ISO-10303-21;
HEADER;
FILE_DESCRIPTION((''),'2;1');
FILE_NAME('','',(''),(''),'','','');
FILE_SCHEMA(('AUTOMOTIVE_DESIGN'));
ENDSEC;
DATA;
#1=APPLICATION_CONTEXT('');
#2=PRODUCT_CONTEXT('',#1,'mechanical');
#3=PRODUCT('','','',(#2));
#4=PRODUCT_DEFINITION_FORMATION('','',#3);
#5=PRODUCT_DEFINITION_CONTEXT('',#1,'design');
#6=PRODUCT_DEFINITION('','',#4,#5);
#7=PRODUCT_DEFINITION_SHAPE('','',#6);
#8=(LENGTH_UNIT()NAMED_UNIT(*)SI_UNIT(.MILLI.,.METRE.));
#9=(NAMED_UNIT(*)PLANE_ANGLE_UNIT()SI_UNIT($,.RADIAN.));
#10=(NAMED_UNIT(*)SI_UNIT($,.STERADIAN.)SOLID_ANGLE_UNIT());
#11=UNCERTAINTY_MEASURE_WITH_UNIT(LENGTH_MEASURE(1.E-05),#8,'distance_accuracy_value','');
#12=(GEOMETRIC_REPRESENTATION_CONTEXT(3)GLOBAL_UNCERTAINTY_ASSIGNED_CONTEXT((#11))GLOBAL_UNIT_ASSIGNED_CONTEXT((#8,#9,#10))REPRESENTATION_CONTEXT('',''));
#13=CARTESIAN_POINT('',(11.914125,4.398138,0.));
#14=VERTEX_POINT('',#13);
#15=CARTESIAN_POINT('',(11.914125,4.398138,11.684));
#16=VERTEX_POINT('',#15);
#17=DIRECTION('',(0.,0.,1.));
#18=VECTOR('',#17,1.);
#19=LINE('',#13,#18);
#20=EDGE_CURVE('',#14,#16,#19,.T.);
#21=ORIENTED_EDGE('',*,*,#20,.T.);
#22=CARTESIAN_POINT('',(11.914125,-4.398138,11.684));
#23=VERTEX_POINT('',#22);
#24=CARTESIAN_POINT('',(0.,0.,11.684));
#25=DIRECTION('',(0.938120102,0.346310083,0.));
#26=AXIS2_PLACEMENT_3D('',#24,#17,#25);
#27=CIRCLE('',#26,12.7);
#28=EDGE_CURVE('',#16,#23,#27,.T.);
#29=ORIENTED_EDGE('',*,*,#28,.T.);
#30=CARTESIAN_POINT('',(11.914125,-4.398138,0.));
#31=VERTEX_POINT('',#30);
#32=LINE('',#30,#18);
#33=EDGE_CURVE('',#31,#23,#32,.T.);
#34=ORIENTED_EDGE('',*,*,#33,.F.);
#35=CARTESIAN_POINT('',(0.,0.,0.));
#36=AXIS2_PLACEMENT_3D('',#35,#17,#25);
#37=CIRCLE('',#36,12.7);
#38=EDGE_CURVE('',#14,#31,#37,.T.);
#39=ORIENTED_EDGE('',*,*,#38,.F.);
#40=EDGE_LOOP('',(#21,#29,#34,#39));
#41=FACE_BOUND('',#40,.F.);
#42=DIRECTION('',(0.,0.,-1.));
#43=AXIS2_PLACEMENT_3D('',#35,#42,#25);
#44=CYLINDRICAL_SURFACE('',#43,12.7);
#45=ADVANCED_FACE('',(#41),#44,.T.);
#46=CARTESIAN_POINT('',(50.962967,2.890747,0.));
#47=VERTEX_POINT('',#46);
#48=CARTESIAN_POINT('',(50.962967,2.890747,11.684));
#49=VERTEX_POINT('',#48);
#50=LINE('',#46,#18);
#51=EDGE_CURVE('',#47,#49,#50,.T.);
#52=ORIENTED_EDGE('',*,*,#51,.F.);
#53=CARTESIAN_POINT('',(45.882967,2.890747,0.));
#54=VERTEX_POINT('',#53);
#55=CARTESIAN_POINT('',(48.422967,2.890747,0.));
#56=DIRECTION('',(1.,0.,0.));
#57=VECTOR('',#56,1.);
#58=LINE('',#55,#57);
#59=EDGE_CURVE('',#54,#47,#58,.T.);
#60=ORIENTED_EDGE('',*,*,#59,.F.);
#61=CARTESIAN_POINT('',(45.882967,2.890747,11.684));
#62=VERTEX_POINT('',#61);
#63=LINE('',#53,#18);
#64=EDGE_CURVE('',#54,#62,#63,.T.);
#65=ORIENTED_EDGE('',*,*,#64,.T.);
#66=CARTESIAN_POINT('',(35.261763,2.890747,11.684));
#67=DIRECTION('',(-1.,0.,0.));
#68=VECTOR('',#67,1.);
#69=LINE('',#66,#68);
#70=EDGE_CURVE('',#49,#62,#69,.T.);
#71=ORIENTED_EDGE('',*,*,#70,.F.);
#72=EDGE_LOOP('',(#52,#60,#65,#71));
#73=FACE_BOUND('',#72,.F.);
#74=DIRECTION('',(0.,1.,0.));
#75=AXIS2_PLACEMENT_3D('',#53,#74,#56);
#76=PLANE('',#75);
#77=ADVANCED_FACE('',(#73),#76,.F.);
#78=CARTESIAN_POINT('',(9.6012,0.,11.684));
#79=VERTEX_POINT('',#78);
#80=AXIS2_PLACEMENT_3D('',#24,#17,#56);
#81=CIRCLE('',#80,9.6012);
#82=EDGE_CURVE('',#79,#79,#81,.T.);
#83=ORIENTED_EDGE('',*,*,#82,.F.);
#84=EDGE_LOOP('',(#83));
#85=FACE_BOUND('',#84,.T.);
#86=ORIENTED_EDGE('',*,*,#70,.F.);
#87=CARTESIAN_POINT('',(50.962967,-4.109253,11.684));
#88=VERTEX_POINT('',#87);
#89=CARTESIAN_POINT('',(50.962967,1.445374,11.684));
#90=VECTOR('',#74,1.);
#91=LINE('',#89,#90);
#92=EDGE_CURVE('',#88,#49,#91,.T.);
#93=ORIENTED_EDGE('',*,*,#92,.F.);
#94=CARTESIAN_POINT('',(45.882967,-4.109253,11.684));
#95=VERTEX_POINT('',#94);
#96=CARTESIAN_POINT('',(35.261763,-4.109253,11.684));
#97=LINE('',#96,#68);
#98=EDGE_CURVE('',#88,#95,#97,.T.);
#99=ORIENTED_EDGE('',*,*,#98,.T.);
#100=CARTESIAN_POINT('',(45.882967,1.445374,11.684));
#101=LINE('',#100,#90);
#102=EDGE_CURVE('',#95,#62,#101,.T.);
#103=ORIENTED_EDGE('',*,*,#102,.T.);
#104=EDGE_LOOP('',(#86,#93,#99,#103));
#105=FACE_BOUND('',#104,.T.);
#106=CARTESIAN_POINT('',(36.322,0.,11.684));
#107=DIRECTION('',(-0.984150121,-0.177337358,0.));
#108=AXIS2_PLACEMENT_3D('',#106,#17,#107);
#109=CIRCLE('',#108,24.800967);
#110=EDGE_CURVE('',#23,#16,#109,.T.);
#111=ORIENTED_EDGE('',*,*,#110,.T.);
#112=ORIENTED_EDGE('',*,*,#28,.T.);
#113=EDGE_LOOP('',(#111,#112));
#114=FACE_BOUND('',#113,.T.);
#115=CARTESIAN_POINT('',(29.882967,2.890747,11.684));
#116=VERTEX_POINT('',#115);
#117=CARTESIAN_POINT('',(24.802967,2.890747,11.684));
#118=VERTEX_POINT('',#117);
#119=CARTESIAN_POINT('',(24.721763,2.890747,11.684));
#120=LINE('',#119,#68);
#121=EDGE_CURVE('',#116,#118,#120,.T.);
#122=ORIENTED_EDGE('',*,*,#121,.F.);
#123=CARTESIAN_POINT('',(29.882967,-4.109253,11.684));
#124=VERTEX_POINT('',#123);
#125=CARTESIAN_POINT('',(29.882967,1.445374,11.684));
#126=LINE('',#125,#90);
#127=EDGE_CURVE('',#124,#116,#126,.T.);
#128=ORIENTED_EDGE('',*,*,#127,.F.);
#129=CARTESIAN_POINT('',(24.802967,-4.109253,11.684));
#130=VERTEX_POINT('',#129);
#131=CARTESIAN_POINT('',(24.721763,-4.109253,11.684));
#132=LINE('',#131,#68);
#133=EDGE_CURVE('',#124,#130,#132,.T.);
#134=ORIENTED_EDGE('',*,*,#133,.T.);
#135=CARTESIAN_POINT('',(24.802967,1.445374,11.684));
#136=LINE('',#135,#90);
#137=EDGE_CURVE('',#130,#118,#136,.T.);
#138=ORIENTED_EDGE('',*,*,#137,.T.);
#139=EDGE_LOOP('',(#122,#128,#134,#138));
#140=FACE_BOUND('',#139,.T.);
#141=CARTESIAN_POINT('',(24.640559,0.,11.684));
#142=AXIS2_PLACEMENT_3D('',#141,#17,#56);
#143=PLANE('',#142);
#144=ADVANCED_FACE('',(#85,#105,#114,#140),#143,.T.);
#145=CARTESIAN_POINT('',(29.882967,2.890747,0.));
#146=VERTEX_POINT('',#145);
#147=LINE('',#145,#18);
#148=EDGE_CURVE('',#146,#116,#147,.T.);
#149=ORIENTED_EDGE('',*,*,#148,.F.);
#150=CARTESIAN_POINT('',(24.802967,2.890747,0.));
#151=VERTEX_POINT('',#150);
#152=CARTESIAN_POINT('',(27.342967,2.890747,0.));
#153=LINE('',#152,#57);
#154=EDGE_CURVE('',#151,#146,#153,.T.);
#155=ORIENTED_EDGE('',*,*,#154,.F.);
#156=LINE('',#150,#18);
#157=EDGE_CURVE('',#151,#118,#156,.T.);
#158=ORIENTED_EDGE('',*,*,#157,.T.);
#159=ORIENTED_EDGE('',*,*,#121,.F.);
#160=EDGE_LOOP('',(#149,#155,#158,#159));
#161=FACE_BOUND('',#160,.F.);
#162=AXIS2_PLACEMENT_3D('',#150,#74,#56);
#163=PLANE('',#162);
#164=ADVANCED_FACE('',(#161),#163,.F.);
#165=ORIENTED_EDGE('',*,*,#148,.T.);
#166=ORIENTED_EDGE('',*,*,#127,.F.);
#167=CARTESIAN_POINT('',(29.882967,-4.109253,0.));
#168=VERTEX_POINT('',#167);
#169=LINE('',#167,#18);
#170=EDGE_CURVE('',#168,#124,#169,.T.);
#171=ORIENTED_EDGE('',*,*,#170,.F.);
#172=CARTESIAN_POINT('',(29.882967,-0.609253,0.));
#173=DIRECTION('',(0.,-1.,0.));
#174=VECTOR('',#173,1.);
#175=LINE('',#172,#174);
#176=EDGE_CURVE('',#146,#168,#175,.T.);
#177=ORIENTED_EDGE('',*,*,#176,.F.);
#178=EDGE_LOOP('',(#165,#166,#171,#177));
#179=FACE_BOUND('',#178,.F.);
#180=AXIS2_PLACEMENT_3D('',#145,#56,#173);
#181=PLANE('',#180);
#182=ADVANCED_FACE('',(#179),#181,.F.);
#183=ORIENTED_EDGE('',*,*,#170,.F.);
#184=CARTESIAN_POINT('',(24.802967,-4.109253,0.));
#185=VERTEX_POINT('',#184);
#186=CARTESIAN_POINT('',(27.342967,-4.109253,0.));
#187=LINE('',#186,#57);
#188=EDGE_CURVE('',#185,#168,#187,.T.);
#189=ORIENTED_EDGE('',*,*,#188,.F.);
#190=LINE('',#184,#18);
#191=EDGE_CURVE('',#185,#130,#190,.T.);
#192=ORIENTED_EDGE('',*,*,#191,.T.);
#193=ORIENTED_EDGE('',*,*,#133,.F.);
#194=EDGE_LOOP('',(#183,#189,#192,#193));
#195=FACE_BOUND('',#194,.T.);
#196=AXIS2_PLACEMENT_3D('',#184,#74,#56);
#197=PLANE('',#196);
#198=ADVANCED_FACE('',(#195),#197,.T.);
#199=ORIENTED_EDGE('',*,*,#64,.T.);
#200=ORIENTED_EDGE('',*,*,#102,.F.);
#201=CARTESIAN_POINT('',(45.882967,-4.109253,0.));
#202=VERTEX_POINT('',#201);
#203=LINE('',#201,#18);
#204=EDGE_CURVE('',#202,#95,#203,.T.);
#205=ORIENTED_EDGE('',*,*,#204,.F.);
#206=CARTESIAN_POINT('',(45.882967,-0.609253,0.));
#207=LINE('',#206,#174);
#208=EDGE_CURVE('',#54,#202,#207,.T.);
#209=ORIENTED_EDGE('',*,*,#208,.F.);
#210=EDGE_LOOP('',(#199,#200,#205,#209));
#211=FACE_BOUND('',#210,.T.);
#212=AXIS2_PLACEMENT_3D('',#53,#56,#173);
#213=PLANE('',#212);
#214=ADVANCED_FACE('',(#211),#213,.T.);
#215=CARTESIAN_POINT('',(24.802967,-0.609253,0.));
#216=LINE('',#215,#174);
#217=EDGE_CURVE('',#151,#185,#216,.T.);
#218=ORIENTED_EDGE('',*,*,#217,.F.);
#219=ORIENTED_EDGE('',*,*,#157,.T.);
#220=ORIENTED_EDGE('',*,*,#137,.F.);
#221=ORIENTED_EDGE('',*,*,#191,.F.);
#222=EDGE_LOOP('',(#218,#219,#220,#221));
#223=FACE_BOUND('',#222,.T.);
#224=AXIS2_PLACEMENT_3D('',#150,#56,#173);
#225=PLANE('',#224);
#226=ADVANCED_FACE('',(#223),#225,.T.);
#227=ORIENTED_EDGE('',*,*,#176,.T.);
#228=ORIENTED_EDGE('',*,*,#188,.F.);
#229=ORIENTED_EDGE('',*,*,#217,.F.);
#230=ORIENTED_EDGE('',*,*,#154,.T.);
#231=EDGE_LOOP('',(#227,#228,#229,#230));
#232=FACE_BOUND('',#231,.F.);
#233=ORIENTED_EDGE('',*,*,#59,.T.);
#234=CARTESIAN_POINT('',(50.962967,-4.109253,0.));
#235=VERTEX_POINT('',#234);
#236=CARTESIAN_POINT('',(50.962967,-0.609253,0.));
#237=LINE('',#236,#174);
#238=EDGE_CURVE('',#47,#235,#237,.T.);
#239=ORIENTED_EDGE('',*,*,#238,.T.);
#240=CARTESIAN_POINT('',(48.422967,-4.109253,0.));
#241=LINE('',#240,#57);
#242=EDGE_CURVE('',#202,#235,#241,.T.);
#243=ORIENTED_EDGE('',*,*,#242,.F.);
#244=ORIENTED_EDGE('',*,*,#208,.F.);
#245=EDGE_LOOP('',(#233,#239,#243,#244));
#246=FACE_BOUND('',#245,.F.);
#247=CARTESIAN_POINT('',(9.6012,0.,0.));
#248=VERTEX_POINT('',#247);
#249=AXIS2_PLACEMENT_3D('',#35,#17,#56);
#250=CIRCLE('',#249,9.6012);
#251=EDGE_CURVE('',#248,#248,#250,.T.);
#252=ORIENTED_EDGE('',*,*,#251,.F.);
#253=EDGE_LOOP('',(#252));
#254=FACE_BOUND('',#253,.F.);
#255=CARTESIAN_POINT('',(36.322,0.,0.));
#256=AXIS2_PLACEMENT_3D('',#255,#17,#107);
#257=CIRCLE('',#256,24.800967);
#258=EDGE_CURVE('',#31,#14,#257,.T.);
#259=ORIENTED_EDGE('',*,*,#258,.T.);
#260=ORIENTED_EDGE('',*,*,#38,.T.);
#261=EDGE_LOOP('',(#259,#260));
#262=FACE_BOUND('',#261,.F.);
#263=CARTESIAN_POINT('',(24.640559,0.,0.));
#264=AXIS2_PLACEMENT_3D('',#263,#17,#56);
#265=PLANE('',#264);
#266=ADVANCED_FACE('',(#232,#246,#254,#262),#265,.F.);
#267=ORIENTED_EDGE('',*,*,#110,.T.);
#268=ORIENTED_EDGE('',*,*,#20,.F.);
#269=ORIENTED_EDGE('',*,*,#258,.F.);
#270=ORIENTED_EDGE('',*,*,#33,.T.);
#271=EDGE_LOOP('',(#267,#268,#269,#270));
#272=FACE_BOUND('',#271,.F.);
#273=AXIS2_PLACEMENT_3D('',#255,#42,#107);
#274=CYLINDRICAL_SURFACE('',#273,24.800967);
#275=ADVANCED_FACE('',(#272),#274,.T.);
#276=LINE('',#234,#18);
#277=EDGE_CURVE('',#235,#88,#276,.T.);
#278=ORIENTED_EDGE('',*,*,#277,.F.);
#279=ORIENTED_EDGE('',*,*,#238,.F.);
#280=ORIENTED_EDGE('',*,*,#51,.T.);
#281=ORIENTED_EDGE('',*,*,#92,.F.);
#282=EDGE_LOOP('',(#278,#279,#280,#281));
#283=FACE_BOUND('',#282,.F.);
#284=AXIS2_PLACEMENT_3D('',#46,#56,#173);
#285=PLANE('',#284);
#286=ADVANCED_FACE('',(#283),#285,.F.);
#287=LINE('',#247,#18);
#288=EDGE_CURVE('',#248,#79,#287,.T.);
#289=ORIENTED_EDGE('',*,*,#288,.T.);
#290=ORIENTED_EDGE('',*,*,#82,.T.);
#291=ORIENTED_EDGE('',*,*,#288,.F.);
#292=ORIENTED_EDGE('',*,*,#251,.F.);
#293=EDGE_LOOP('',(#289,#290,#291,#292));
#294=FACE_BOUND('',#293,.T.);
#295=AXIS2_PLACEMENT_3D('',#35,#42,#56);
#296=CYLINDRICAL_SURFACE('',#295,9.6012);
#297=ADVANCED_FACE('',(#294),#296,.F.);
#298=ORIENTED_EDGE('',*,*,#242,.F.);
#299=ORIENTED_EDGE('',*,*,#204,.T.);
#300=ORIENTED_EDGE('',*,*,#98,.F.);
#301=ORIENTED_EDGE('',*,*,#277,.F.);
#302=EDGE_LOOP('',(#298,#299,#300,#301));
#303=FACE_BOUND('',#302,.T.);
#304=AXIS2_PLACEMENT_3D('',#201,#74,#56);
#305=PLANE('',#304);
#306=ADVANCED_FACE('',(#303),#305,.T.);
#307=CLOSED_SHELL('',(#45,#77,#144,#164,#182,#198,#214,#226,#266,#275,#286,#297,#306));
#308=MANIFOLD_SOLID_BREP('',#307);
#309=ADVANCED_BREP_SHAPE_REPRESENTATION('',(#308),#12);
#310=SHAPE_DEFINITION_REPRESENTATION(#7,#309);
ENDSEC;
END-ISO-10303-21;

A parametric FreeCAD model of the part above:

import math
import FreeCAD as App
import Part
import Sketcher

V = App.Vector
Q = App.Units.Quantity


def add_polygon(sketch, points):
    """Adds a closed chain of lines whose ends are joined by coincident constraints."""
    first, n = sketch.GeometryCount, len(points)
    for a, b in zip(points, points[1:] + points[:1]):
        sketch.addGeometry(Part.LineSegment(App.Vector(*a, 0), App.Vector(*b, 0)), False)
    for i in range(n):
        sketch.addConstraint(Sketcher.Constraint("Coincident", first + i, 2, first + (i + 1) % n, 1))

doc = App.newDocument("Part")
params = doc.addObject("Spreadsheet::Sheet", "Params")
for row, (alias, value) in enumerate([
    ("sketch1_radius", "0.5 in"),
    ("sketch1_diameter", "0.756 in"),
    ("pad1_length", "0.46 in"),
    ("sketch2_width", "0.2 in"),
    ("pocket1_length", "1 in"),
], start=1):
    params.set(f"A{row}", alias)
    params.set(f"B{row}", "=" + value)
    params.setAlias(f"B{row}", alias)

body = doc.addObject("PartDesign::Body", "Body")

# Sketch on XY plane
sketch1 = body.newObject("Sketcher::SketchObject", "Sketch")
sketch1.AttachmentSupport = (doc.getObject("XY_Plane"), [""])
sketch1.MapMode = "FlatFace"
sketch1.addGeometry([
    Part.ArcOfCircle(Part.Circle(V(36, 0, 0), V(0, 0, 1), 25), math.radians(-170), math.radians(170)),
    Part.ArcOfCircle(Part.Circle(V(0, 0, 0), V(0, 0, 1), 13), math.radians(20), math.radians(340)),
    Part.Circle(V(0, 0, 0), V(0, 0, 1), 10),
], False)
sketch1.addConstraint([
    Sketcher.Constraint("Coincident", 0, 1, 1, 2),
    Sketcher.Constraint("Coincident", 1, 1, 0, 2),
    Sketcher.Constraint("Coincident", 1, 3, -1, 1),
    Sketcher.Constraint("Coincident", 2, 3, -1, 1),
    Sketcher.Constraint("PointOnObject", 0, 3, -1),
    Sketcher.Constraint("Radius", 1, Q("0.5 in")),
    Sketcher.Constraint("Diameter", 2, Q("0.756 in")),
    Sketcher.Constraint("DistanceX", -1, 1, 0, 3, Q("1.43 in")),
    Sketcher.Constraint("Radius", 0, 24.800967),
])
sketch1.setExpression("Constraints[5]", "Params.sketch1_radius")
sketch1.setExpression("Constraints[6]", "Params.sketch1_diameter")
pad1 = body.newObject("PartDesign::Pad", "Pad")
pad1.Profile = sketch1
pad1.setExpression("Length", "Params.pad1_length")

# Sketch on XY plane
sketch2 = body.newObject("Sketcher::SketchObject", "Sketch001")
sketch2.AttachmentSupport = (doc.getObject("XY_Plane"), [""])
sketch2.MapMode = "FlatFace"
add_polygon(sketch2, [(25, -4), (25, 3), (30, 3), (30, -4)])  # lines 0-3
add_polygon(sketch2, [(46, -4), (46, 3), (51, 3), (51, -4)])  # lines 4-7
sketch2.addConstraint([
    Sketcher.Constraint("Vertical", 0),
    Sketcher.Constraint("Horizontal", 1),
    Sketcher.Constraint("Vertical", 2),
    Sketcher.Constraint("Horizontal", 3),
    Sketcher.Constraint("Vertical", 4),
    Sketcher.Constraint("Horizontal", 5),
    Sketcher.Constraint("Vertical", 6),
    Sketcher.Constraint("Horizontal", 7),
    Sketcher.Constraint("Horizontal", 1, 2, 4, 2),
    Sketcher.Constraint("Horizontal", 3, 2, 6, 2),
    Sketcher.Constraint("Equal", 3, 5),
    Sketcher.Constraint("DistanceX", 1, 1, 1, 2, Q("0.2 in")),
    Sketcher.Constraint("DistanceY", 0, 1, 0, 2, 7.0),
    Sketcher.Constraint("DistanceX", 1, 2, 4, 2, 16.0),
    Sketcher.Constraint("DistanceX", -1, 1, 0, 2, 24.802967),
    Sketcher.Constraint("DistanceY", -1, 1, 0, 2, 2.890747),
])
sketch2.setExpression("Constraints[19]", "Params.sketch2_width")
pocket1 = body.newObject("PartDesign::Pocket", "Pocket")
pocket1.Profile = sketch2
pocket1.setExpression("Length", "Params.pocket1_length")
pocket1.Reversed = True

doc.recompute()
